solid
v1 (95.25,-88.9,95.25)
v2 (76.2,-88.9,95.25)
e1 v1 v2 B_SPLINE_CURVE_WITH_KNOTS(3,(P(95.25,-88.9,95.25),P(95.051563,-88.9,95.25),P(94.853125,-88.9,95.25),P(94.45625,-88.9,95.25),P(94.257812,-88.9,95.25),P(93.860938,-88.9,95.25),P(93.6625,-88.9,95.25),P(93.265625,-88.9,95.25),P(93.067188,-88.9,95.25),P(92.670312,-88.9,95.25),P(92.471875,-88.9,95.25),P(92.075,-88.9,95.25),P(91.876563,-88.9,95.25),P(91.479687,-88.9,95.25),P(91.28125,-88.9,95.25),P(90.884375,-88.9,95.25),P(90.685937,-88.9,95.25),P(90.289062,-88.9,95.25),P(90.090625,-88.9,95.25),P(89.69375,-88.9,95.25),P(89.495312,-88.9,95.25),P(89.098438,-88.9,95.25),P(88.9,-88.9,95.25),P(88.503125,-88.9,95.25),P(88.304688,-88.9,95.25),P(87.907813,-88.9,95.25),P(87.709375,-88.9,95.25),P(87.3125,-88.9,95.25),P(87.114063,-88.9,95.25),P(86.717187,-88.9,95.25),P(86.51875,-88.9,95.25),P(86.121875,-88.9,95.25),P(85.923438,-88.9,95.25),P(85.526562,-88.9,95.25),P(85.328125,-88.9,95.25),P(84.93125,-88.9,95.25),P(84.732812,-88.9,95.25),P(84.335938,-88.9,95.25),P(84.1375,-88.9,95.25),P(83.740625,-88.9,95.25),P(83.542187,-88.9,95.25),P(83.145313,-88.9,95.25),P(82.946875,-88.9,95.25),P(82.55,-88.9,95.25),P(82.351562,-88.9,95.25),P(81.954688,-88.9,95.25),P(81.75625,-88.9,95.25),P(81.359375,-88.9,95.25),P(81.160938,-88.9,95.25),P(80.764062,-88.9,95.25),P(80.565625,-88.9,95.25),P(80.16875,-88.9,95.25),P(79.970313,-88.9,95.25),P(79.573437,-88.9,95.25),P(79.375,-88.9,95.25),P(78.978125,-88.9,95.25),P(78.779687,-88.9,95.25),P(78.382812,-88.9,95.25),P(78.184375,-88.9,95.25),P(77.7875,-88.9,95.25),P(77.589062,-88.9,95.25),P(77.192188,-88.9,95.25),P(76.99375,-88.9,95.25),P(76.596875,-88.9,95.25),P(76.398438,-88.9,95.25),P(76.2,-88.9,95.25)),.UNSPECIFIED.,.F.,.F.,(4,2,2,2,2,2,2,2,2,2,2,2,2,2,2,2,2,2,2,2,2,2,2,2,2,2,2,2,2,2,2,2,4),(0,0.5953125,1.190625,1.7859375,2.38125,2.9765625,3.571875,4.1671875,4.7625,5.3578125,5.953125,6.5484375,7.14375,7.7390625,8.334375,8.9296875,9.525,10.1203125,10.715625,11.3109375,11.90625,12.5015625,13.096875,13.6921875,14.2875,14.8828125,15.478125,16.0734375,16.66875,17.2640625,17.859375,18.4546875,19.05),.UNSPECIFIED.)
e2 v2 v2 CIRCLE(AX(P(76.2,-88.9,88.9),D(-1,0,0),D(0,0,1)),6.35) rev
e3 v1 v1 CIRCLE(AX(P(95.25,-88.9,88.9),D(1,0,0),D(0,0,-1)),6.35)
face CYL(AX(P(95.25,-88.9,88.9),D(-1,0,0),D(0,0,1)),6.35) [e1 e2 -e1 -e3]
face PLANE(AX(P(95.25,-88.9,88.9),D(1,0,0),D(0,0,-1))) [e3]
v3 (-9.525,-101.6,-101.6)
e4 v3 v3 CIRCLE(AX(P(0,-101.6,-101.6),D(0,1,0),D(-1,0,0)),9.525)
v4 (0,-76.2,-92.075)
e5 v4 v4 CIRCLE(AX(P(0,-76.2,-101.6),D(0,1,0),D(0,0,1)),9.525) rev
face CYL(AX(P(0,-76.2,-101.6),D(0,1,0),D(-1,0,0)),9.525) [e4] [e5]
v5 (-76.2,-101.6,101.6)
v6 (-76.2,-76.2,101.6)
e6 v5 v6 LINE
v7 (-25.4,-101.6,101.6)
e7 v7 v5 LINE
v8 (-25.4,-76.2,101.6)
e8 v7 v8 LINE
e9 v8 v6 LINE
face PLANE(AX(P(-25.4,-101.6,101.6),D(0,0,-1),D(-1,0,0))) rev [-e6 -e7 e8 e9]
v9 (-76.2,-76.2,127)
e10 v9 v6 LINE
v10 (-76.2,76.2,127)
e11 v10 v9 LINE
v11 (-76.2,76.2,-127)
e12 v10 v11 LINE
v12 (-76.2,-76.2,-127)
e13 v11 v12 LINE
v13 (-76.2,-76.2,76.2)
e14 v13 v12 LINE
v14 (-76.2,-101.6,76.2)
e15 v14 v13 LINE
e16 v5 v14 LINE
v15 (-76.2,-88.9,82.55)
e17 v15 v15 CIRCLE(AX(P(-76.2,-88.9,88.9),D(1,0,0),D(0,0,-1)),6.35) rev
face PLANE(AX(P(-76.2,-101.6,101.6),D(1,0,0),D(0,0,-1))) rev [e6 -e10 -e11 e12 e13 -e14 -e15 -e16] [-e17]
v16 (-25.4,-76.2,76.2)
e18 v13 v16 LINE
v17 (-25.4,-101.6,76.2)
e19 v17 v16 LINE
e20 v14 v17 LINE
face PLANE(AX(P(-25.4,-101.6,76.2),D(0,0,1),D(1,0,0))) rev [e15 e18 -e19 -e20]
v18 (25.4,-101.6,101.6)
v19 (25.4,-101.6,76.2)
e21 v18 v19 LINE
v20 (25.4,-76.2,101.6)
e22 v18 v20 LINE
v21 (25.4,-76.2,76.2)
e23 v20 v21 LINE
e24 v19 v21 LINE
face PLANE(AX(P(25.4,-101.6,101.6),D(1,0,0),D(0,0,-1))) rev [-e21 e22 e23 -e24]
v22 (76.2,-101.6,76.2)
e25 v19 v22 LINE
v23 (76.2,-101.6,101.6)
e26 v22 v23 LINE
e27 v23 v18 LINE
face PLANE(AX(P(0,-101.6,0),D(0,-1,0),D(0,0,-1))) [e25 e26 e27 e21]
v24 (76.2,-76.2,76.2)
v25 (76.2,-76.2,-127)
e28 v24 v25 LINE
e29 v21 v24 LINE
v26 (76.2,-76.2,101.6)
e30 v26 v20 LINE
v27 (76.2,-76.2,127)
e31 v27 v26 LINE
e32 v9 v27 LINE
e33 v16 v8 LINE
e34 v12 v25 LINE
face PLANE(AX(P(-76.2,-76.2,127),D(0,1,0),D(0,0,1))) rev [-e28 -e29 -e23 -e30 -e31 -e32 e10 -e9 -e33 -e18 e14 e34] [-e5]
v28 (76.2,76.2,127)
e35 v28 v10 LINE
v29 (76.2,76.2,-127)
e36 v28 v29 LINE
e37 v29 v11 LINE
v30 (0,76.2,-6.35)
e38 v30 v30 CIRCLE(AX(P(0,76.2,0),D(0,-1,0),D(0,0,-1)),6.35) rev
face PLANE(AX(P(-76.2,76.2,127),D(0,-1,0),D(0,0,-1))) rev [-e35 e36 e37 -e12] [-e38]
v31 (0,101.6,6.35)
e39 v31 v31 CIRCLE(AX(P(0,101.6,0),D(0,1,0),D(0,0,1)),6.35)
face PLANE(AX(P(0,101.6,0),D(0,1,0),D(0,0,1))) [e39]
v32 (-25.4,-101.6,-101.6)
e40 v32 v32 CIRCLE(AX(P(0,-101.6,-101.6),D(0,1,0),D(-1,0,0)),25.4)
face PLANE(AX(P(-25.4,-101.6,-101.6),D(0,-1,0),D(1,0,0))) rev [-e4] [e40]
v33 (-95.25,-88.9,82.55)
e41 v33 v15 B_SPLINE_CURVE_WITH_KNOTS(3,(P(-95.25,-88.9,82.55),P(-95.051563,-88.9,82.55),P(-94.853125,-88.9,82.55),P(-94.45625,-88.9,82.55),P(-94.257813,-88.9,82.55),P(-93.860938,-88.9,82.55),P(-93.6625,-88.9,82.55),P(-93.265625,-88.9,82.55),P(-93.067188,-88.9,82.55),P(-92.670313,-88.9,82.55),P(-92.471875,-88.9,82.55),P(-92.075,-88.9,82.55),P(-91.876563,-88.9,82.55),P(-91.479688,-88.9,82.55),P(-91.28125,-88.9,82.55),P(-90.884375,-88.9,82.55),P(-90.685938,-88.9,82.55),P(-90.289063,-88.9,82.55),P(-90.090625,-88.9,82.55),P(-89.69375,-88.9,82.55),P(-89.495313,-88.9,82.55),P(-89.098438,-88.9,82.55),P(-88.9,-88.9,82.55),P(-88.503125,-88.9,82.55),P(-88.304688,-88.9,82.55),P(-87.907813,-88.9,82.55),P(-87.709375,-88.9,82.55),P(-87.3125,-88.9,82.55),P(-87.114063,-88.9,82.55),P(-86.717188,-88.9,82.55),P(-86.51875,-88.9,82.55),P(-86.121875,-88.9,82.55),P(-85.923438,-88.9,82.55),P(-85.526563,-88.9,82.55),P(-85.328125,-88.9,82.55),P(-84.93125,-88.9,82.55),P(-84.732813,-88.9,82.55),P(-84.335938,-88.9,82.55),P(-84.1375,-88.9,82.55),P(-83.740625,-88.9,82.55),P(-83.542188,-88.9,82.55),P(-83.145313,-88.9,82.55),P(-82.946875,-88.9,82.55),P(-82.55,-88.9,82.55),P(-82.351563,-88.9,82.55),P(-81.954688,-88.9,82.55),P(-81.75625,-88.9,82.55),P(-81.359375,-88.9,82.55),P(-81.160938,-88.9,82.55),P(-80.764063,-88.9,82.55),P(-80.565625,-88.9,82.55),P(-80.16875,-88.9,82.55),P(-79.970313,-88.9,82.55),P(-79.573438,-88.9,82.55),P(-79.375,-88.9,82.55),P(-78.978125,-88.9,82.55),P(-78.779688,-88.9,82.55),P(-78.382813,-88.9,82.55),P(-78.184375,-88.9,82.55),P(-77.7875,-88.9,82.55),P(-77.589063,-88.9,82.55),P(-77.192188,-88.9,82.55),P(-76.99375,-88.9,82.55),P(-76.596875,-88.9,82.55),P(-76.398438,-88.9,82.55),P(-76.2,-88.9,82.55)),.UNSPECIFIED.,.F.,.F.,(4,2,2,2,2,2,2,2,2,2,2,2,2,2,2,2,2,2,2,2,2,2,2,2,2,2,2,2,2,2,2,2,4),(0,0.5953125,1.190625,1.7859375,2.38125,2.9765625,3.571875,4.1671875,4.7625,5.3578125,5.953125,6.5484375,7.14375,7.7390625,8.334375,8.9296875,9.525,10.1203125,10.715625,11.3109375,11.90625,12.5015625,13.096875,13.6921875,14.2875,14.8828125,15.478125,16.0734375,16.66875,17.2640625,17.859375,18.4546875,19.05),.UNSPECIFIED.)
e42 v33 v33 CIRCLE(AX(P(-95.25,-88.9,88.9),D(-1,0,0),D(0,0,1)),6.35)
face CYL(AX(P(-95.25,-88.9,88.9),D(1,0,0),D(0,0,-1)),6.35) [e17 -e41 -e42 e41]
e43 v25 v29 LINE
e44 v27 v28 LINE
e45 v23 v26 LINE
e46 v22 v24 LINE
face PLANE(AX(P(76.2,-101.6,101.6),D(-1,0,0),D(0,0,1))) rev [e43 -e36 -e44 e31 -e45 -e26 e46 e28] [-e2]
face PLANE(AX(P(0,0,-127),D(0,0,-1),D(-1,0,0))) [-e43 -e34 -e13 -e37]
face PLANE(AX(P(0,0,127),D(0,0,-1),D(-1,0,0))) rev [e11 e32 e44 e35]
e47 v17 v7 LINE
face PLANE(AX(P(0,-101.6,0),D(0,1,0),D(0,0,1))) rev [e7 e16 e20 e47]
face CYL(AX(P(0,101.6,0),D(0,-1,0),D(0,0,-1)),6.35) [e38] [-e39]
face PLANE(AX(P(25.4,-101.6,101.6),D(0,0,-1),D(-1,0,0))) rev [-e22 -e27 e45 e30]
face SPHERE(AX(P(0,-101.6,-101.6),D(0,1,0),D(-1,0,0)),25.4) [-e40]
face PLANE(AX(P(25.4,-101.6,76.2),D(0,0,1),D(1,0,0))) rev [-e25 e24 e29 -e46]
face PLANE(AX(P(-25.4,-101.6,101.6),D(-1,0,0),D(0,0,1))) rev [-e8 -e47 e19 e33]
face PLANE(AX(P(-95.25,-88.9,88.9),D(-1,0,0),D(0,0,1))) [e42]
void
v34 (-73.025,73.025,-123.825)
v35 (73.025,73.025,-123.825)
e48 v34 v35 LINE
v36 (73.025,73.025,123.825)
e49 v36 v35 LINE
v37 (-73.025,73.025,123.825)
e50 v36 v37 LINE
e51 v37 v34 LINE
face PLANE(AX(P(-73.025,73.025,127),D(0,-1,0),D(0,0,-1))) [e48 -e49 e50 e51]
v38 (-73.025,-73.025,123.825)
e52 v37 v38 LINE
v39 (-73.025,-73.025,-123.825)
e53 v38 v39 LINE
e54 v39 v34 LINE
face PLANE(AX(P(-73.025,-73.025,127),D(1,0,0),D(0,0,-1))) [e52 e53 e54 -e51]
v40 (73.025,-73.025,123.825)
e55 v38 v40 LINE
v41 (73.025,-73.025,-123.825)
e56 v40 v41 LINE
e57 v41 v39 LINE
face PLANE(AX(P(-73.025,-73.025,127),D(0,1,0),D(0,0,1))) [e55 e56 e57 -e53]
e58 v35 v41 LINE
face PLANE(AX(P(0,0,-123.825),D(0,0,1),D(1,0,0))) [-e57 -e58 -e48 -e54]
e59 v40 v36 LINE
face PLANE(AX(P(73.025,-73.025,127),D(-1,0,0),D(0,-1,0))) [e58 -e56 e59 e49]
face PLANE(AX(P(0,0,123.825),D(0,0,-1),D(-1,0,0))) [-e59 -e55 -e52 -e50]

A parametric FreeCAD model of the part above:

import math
import FreeCAD as App
import Part
import Sketcher
Q = App.Units.Quantity


def add_polygon(sketch, points):
    """Adds a closed chain of lines whose ends are joined by coincident constraints."""
    first, n = sketch.GeometryCount, len(points)
    for a, b in zip(points, points[1:] + points[:1]):
        sketch.addGeometry(Part.LineSegment(App.Vector(*a, 0), App.Vector(*b, 0)), False)
    for i in range(n):
        sketch.addConstraint(Sketcher.Constraint("Coincident", first + i, 2, first + (i + 1) % n, 1))

doc = App.newDocument("Part")
body = doc.addObject("PartDesign::Body", "Body")

# Sketch on XY plane
sketch1 = body.newObject("Sketcher::SketchObject", "Sketch")
sketch1.AttachmentSupport = (doc.getObject("XY_Plane"), [""])
sketch1.MapMode = "FlatFace"
add_polygon(sketch1, [(-76.2, 76.2), (-76.2, -76.2), (76.2, -76.2), (76.2, 76.2)])  # lines 0-3
add_polygon(sketch1, [(73.025, -73.025), (-73.025, -73.025), (-73.025, 73.025), (73.025, 73.025)])  # lines 4-7
sketch1.addConstraint(Sketcher.Constraint("Vertical", 0))
sketch1.addConstraint(Sketcher.Constraint("Horizontal", 1))
sketch1.addConstraint(Sketcher.Constraint("Vertical", 2))
sketch1.addConstraint(Sketcher.Constraint("Horizontal", 3))
sketch1.addConstraint(Sketcher.Constraint("Horizontal", 4))
sketch1.addConstraint(Sketcher.Constraint("Vertical", 5))
sketch1.addConstraint(Sketcher.Constraint("Horizontal", 6))
sketch1.addConstraint(Sketcher.Constraint("Vertical", 7))
sketch1.addConstraint(Sketcher.Constraint("Symmetric", 0, 2, 2, 2, -1, 1))
sketch1.addConstraint(Sketcher.Constraint("Symmetric", 4, 2, 6, 2, -1, 1))
sketch1.addConstraint(Sketcher.Constraint("Equal", 3, 0))
sketch1.addConstraint(Sketcher.Constraint("Equal", 6, 5))
sketch1.addConstraint(Sketcher.Constraint("DistanceX", 1, 1, 1, 2, Q("6 in")))
sketch1.addConstraint(Sketcher.Constraint("DistanceX", 4, 2, 4, 1, Q("5.75 in")))
pad1 = body.newObject("PartDesign::Pad", "Pad")
pad1.Profile = sketch1
pad1.Length = Q("10 in")
pad1.Midplane = True

# Sketch on XY plane
sketch2 = body.newObject("Sketcher::SketchObject", "Sketch001")
sketch2.AttachmentSupport = (doc.getObject("XY_Plane"), [""])
sketch2.MapMode = "FlatFace"
sketch2.AttachmentOffset = App.Placement(App.Vector(0, 0, 5 * 25.4), App.Rotation())
add_polygon(sketch2, [(-73.025, 73.025), (-73.025, -73.025), (73.025, -73.025), (73.025, 73.025)])  # lines 0-3
sketch2.addConstraint(Sketcher.Constraint("Vertical", 0))
sketch2.addConstraint(Sketcher.Constraint("Horizontal", 1))
sketch2.addConstraint(Sketcher.Constraint("Vertical", 2))
sketch2.addConstraint(Sketcher.Constraint("Horizontal", 3))
sketch2.addConstraint(Sketcher.Constraint("Symmetric", 0, 2, 2, 2, -1, 1))
sketch2.addConstraint(Sketcher.Constraint("Equal", 3, 0))
sketch2.addConstraint(Sketcher.Constraint("DistanceX", 1, 1, 1, 2, Q("5.75 in")))
pad2 = body.newObject("PartDesign::Pad", "Pad001")
pad2.Profile = sketch2
pad2.Length = Q("0.125 in")
pad2.Reversed = True

# Sketch on XY plane
sketch3 = body.newObject("Sketcher::SketchObject", "Sketch002")
sketch3.AttachmentSupport = (doc.getObject("XY_Plane"), [""])
sketch3.MapMode = "FlatFace"
sketch3.AttachmentOffset = App.Placement(App.Vector(0, 0, -5 * 25.4), App.Rotation())
add_polygon(sketch3, [(73.025, 73.025), (73.025, -73.025), (-73.025, -73.025), (-73.025, 73.025)])  # lines 0-3
sketch3.addConstraint(Sketcher.Constraint("Vertical", 0))
sketch3.addConstraint(Sketcher.Constraint("Horizontal", 1))
sketch3.addConstraint(Sketcher.Constraint("Vertical", 2))
sketch3.addConstraint(Sketcher.Constraint("Horizontal", 3))
sketch3.addConstraint(Sketcher.Constraint("Symmetric", 0, 2, 2, 2, -1, 1))
sketch3.addConstraint(Sketcher.Constraint("Equal", 3, 0))
sketch3.addConstraint(Sketcher.Constraint("DistanceX", 1, 2, 1, 1, Q("5.75 in")))
pad3 = body.newObject("PartDesign::Pad", "Pad002")
pad3.Profile = sketch3
pad3.Length = Q("0.125 in")

# Sketch on XY plane
sketch4 = body.newObject("Sketcher::SketchObject", "Sketch003")
sketch4.AttachmentSupport = (doc.getObject("XY_Plane"), [""])
sketch4.MapMode = "FlatFace"
sketch4.AttachmentOffset = App.Placement(App.Vector(0, 0, -4 * 25.4), App.Rotation())
sketch4.addGeometry(Part.LineSegment(App.Vector(0, -76.2, 0), App.Vector(0, -127, 0)), False)
sketch4.addGeometry(Part.ArcOfCircle(Part.Circle(App.Vector(0, -101.6, 0), App.Vector(0, 0, 1), 25.4), math.radians(180), math.radians(270)), False)
sketch4.addGeometry(Part.LineSegment(App.Vector(-25.4, -101.6, 0), App.Vector(-9.525, -101.6, 0)), False)
sketch4.addGeometry(Part.LineSegment(App.Vector(-9.525, -101.6, 0), App.Vector(-9.525, -76.2, 0)), False)
sketch4.addGeometry(Part.LineSegment(App.Vector(-9.525, -76.2, 0), App.Vector(0, -76.2, 0)), False)
sketch4.addConstraint(Sketcher.Constraint("Coincident", 0, 2, 1, 2))
sketch4.addConstraint(Sketcher.Constraint("Coincident", 1, 1, 2, 1))
sketch4.addConstraint(Sketcher.Constraint("Coincident", 2, 2, 3, 1))
sketch4.addConstraint(Sketcher.Constraint("Coincident", 3, 2, 4, 1))
sketch4.addConstraint(Sketcher.Constraint("Coincident", 4, 2, 0, 1))
sketch4.addConstraint(Sketcher.Constraint("Vertical", 0))
sketch4.addConstraint(Sketcher.Constraint("Horizontal", 2))
sketch4.addConstraint(Sketcher.Constraint("Vertical", 3))
sketch4.addConstraint(Sketcher.Constraint("Horizontal", 4))
sketch4.addConstraint(Sketcher.Constraint("PointOnObject", 1, 3, -2))
sketch4.addConstraint(Sketcher.Constraint("PointOnObject", 0, 2, -2))
sketch4.addConstraint(Sketcher.Constraint("Radius", 1, Q("1 in")))
sketch4.addConstraint(Sketcher.Constraint("DistanceY", 0, 2, 0, 1, Q("2 in")))
sketch4.addConstraint(Sketcher.Constraint("DistanceY", 3, 1, 3, 2, Q("1 in")))
sketch4.addConstraint(Sketcher.Constraint("DistanceY", 1, 3, -1, 1, Q("4 in")))
sketch4.addConstraint(Sketcher.Constraint("DistanceX", 2, 1, 2, 2, Q("0.625 in")))
revolution = body.newObject("PartDesign::Revolution", "Revolution")
revolution.Profile = sketch4
revolution.ReferenceAxis = (sketch4, ["V_Axis"])
revolution.Angle = 360

# Sketch on XZ plane
sketch5 = body.newObject("Sketcher::SketchObject", "Sketch004")
sketch5.AttachmentSupport = (doc.getObject("XZ_Plane"), [""])
sketch5.MapMode = "FlatFace"
sketch5.AttachmentOffset = App.Placement(App.Vector(0, 0, -3 * 25.4), App.Rotation())
sketch5.addGeometry(Part.Circle(App.Vector(0, 0, 0), App.Vector(0, 0, 1), 6.35), False)
sketch5.addConstraint(Sketcher.Constraint("Coincident", 0, 3, -1, 1))
sketch5.addConstraint(Sketcher.Constraint("Diameter", 0, Q("0.5 in")))
pad4 = body.newObject("PartDesign::Pad", "Pad003")
pad4.Profile = sketch5
pad4.Length = Q("1 in")
pad4.Reversed = True
body2 = doc.addObject("PartDesign::Body", "Body001")

# Sketch on XZ plane
sketch6 = body2.newObject("Sketcher::SketchObject", "Sketch005")
sketch6.AttachmentSupport = (doc.getObject("XZ_Plane001"), [""])
sketch6.MapMode = "FlatFace"
sketch6.AttachmentOffset = App.Placement(App.Vector(0, 0, 3 * 25.4), App.Rotation())
add_polygon(sketch6, [(25.4, 101.6), (25.4, 76.2), (76.2, 76.2), (76.2, 101.6)])  # lines 0-3
sketch6.addConstraint(Sketcher.Constraint("Vertical", 0))
sketch6.addConstraint(Sketcher.Constraint("Horizontal", 1))
sketch6.addConstraint(Sketcher.Constraint("Vertical", 2))
sketch6.addConstraint(Sketcher.Constraint("Horizontal", 3))
sketch6.addConstraint(Sketcher.Constraint("DistanceX", 1, 1, 1, 2, Q("2 in")))
sketch6.addConstraint(Sketcher.Constraint("DistanceY", 0, 2, 0, 1, Q("1 in")))
sketch6.addConstraint(Sketcher.Constraint("DistanceX", -1, 1, 0, 2, Q("1 in")))
sketch6.addConstraint(Sketcher.Constraint("DistanceY", -1, 1, 0, 2, Q("3 in")))
pad5 = body2.newObject("PartDesign::Pad", "Pad004")
pad5.Profile = sketch6
pad5.Length = Q("1 in")
doc.recompute()

boolean = body2.newObject("PartDesign::Boolean", "Boolean")
boolean.Type = "Fuse"
boolean.addObjects([body])

# Sketch on YZ plane
sketch7 = body2.newObject("Sketcher::SketchObject", "Sketch006")
sketch7.AttachmentSupport = (doc.getObject("YZ_Plane001"), [""])
sketch7.MapMode = "FlatFace"
sketch7.AttachmentOffset = App.Placement(App.Vector(0, 0, 3 * 25.4), App.Rotation())
sketch7.addGeometry(Part.Circle(App.Vector(-88.9, 88.9, 0), App.Vector(0, 0, 1), 6.35), False)
sketch7.addConstraint(Sketcher.Constraint("Diameter", 0, Q("0.5 in")))
sketch7.addConstraint(Sketcher.Constraint("DistanceX", 0, 3, -1, 1, Q("3.5 in")))
sketch7.addConstraint(Sketcher.Constraint("DistanceY", -1, 1, 0, 3, Q("3.5 in")))
pad6 = body2.newObject("PartDesign::Pad", "Pad005")
pad6.Profile = sketch7
pad6.Length = Q("0.75 in")
body3 = doc.addObject("PartDesign::Body", "Body002")

# Sketch on XZ plane
sketch8 = body3.newObject("Sketcher::SketchObject", "Sketch007")
sketch8.AttachmentSupport = (doc.getObject("XZ_Plane002"), [""])
sketch8.MapMode = "FlatFace"
sketch8.AttachmentOffset = App.Placement(App.Vector(0, 0, 3 * 25.4), App.Rotation())
add_polygon(sketch8, [(-76.2, 101.6), (-76.2, 76.2), (-25.4, 76.2), (-25.4, 101.6)])  # lines 0-3
sketch8.addConstraint(Sketcher.Constraint("Vertical", 0))
sketch8.addConstraint(Sketcher.Constraint("Horizontal", 1))
sketch8.addConstraint(Sketcher.Constraint("Vertical", 2))
sketch8.addConstraint(Sketcher.Constraint("Horizontal", 3))
sketch8.addConstraint(Sketcher.Constraint("DistanceX", 1, 1, 1, 2, Q("2 in")))
sketch8.addConstraint(Sketcher.Constraint("DistanceY", 0, 2, 0, 1, Q("1 in")))
sketch8.addConstraint(Sketcher.Constraint("DistanceX", 0, 2, -1, 1, Q("3 in")))
sketch8.addConstraint(Sketcher.Constraint("DistanceY", -1, 1, 0, 2, Q("3 in")))
pad7 = body3.newObject("PartDesign::Pad", "Pad006")
pad7.Profile = sketch8
pad7.Length = Q("1 in")
doc.recompute()

boolean2 = body3.newObject("PartDesign::Boolean", "Boolean001")
boolean2.Type = "Fuse"
boolean2.addObjects([body2])

# Sketch on YZ plane
sketch9 = body3.newObject("Sketcher::SketchObject", "Sketch008")
sketch9.AttachmentSupport = (doc.getObject("YZ_Plane002"), [""])
sketch9.MapMode = "FlatFace"
sketch9.AttachmentOffset = App.Placement(App.Vector(0, 0, -3 * 25.4), App.Rotation())
sketch9.addGeometry(Part.Circle(App.Vector(-88.9, 88.9, 0), App.Vector(0, 0, 1), 6.35), False)
sketch9.addConstraint(Sketcher.Constraint("Diameter", 0, Q("0.5 in")))
sketch9.addConstraint(Sketcher.Constraint("DistanceX", 0, 3, -1, 1, Q("3.5 in")))
sketch9.addConstraint(Sketcher.Constraint("DistanceY", -1, 1, 0, 3, Q("3.5 in")))
pad8 = body3.newObject("PartDesign::Pad", "Pad007")
pad8.Profile = sketch9
pad8.Length = Q("0.75 in")
pad8.Reversed = True

doc.recompute()
